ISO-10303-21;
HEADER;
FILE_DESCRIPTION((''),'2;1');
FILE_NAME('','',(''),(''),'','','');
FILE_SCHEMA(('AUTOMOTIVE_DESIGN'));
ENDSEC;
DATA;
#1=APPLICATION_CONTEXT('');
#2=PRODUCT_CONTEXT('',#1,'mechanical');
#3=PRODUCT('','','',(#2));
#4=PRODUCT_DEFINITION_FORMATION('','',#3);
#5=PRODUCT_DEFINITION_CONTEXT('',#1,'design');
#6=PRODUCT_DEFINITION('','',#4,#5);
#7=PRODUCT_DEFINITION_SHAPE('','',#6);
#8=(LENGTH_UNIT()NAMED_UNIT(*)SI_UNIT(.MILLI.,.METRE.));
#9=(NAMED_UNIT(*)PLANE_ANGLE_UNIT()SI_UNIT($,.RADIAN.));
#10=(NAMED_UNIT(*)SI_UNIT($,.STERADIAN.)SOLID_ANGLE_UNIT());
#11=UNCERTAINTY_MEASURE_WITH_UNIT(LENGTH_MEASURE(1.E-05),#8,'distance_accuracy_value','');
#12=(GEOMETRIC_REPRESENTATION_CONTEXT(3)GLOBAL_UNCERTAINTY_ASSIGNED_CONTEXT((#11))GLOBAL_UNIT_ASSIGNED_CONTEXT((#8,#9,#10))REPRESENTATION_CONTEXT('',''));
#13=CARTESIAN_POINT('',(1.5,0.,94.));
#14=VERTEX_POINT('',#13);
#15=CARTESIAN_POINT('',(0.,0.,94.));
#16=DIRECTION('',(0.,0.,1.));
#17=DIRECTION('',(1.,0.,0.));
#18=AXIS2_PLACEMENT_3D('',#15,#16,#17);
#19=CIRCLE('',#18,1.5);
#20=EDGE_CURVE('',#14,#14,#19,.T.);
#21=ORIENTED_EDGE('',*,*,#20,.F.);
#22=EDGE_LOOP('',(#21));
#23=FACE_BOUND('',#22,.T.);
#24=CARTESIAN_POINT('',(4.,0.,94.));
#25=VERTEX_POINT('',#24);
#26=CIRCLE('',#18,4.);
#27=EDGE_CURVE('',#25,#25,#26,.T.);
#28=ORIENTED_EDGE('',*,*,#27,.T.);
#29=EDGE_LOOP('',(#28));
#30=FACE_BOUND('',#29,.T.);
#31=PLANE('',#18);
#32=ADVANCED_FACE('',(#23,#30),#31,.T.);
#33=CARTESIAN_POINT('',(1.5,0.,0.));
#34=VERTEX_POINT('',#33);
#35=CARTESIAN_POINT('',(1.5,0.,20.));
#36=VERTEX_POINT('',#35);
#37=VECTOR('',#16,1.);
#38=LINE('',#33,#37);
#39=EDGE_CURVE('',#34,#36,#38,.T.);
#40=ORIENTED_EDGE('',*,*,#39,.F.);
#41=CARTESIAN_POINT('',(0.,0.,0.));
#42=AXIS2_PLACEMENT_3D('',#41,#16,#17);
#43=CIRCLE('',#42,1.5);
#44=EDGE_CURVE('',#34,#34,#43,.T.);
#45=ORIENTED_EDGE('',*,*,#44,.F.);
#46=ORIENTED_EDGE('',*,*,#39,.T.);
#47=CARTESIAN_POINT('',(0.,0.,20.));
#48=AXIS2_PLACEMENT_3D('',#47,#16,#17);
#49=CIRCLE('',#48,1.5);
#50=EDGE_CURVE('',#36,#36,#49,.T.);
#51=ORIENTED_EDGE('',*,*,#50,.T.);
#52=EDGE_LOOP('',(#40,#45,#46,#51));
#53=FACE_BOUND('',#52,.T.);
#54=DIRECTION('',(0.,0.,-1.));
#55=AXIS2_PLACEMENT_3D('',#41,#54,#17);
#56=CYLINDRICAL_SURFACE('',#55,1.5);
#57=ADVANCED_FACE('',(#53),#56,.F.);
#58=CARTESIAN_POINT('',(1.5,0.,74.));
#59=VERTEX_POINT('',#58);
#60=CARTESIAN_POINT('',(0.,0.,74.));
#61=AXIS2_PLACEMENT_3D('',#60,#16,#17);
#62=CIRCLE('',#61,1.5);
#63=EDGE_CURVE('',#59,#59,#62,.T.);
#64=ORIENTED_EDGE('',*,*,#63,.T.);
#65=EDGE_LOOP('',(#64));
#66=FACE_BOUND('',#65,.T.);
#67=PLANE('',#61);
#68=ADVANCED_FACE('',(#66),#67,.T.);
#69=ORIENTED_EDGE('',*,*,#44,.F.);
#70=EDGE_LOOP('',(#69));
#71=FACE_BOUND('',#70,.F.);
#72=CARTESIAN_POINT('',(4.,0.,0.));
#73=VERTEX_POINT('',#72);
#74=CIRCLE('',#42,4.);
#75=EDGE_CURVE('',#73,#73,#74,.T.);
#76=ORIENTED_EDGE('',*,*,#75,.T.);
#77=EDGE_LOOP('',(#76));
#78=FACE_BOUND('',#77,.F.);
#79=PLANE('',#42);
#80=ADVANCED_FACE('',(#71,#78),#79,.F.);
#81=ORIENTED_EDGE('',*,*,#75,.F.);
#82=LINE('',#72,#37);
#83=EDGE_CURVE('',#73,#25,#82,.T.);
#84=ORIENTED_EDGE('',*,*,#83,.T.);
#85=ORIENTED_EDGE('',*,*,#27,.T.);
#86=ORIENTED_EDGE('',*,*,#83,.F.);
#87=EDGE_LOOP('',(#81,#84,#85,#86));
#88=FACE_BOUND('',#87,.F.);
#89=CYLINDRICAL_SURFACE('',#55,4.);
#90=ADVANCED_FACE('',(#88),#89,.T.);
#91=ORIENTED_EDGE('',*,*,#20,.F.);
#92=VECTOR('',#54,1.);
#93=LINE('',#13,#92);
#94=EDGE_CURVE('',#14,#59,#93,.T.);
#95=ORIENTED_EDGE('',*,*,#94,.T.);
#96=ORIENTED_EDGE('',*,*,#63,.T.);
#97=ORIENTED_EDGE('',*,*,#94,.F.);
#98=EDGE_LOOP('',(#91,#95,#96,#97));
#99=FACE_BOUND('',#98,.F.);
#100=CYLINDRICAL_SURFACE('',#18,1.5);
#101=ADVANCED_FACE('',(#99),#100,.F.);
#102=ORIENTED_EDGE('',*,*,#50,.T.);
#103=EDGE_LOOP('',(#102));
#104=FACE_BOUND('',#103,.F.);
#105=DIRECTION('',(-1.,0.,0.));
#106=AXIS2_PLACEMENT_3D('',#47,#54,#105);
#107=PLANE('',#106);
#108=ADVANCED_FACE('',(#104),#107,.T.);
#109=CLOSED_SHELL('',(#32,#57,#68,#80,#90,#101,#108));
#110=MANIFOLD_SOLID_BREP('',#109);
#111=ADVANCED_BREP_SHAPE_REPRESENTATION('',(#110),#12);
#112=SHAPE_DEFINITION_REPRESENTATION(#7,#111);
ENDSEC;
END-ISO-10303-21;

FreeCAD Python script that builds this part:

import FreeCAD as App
import Part
import Sketcher

V = App.Vector
Q = App.Units.Quantity

doc = App.newDocument("Part")
params = doc.addObject("Spreadsheet::Sheet", "Params")
for row, (alias, value) in enumerate([
    ("sketch1_diameter", "8 mm"),
    ("pad1_length", "94 mm"),
    ("sketch2_diameter", "3 mm"),
    ("pocket1_length", "20 mm"),
], start=1):
    params.set(f"A{row}", alias)
    params.set(f"B{row}", "=" + value)
    params.setAlias(f"B{row}", alias)

body = doc.addObject("PartDesign::Body", "Body")

sketch1 = doc.addObject("Sketcher::SketchObject", "Sketch")
body.addObject(sketch1)
sketch1.AttachmentSupport = (doc.XY_Plane, [""])
sketch1.MapMode = "FlatFace"
sketch1.addGeometry(Part.Circle(V(0, 0, 0), V(0, 0, 1), 4), False)
sketch1.addConstraint([
    Sketcher.Constraint("Coincident", 0, 3, -1, 1),
    Sketcher.Constraint("Diameter", 0, Q("8 mm")),
])
sketch1.setExpression("Constraints[1]", "Params.sketch1_diameter")
pad1 = doc.addObject("PartDesign::Pad", "Pad")
body.addObject(pad1)
pad1.Profile = sketch1
pad1.setExpression("Length", "Params.pad1_length")

sketch2 = doc.addObject("Sketcher::SketchObject", "Sketch001")
body.addObject(sketch2)
sketch2.AttachmentSupport = (doc.XY_Plane, [""])
sketch2.MapMode = "FlatFace"
sketch2.AttachmentOffset = App.Placement(V(0, 0, 94), App.Rotation())
sketch2.addGeometry(Part.Circle(V(0, 0, 0), V(0, 0, 1), 1.5), False)
sketch2.addConstraint([
    Sketcher.Constraint("Coincident", 0, 3, -1, 1),
    Sketcher.Constraint("Diameter", 0, Q("3 mm")),
])
sketch2.setExpression("Constraints[1]", "Params.sketch2_diameter")
pocket1 = doc.addObject("PartDesign::Pocket", "Pocket")
body.addObject(pocket1)
pocket1.Profile = sketch2
pocket1.setExpression("Length", "Params.pocket1_length")
doc.recompute()

datumplane = doc.addObject("PartDesign::Plane", "DatumPlane")
body.addObject(datumplane)
datumplane.AttachmentSupport = (doc.XY_Plane, [""])
datumplane.MapMode = "FlatFace"
datumplane.AttachmentOffset = App.Placement(V(0, 0, 47), App.Rotation())
mirrored = doc.addObject("PartDesign::Mirrored", "Mirrored")
body.addObject(mirrored)
mirrored.Originals = [pocket1]
mirrored.MirrorPlane = (datumplane, [""])
body.Tip = mirrored

doc.recompute()
